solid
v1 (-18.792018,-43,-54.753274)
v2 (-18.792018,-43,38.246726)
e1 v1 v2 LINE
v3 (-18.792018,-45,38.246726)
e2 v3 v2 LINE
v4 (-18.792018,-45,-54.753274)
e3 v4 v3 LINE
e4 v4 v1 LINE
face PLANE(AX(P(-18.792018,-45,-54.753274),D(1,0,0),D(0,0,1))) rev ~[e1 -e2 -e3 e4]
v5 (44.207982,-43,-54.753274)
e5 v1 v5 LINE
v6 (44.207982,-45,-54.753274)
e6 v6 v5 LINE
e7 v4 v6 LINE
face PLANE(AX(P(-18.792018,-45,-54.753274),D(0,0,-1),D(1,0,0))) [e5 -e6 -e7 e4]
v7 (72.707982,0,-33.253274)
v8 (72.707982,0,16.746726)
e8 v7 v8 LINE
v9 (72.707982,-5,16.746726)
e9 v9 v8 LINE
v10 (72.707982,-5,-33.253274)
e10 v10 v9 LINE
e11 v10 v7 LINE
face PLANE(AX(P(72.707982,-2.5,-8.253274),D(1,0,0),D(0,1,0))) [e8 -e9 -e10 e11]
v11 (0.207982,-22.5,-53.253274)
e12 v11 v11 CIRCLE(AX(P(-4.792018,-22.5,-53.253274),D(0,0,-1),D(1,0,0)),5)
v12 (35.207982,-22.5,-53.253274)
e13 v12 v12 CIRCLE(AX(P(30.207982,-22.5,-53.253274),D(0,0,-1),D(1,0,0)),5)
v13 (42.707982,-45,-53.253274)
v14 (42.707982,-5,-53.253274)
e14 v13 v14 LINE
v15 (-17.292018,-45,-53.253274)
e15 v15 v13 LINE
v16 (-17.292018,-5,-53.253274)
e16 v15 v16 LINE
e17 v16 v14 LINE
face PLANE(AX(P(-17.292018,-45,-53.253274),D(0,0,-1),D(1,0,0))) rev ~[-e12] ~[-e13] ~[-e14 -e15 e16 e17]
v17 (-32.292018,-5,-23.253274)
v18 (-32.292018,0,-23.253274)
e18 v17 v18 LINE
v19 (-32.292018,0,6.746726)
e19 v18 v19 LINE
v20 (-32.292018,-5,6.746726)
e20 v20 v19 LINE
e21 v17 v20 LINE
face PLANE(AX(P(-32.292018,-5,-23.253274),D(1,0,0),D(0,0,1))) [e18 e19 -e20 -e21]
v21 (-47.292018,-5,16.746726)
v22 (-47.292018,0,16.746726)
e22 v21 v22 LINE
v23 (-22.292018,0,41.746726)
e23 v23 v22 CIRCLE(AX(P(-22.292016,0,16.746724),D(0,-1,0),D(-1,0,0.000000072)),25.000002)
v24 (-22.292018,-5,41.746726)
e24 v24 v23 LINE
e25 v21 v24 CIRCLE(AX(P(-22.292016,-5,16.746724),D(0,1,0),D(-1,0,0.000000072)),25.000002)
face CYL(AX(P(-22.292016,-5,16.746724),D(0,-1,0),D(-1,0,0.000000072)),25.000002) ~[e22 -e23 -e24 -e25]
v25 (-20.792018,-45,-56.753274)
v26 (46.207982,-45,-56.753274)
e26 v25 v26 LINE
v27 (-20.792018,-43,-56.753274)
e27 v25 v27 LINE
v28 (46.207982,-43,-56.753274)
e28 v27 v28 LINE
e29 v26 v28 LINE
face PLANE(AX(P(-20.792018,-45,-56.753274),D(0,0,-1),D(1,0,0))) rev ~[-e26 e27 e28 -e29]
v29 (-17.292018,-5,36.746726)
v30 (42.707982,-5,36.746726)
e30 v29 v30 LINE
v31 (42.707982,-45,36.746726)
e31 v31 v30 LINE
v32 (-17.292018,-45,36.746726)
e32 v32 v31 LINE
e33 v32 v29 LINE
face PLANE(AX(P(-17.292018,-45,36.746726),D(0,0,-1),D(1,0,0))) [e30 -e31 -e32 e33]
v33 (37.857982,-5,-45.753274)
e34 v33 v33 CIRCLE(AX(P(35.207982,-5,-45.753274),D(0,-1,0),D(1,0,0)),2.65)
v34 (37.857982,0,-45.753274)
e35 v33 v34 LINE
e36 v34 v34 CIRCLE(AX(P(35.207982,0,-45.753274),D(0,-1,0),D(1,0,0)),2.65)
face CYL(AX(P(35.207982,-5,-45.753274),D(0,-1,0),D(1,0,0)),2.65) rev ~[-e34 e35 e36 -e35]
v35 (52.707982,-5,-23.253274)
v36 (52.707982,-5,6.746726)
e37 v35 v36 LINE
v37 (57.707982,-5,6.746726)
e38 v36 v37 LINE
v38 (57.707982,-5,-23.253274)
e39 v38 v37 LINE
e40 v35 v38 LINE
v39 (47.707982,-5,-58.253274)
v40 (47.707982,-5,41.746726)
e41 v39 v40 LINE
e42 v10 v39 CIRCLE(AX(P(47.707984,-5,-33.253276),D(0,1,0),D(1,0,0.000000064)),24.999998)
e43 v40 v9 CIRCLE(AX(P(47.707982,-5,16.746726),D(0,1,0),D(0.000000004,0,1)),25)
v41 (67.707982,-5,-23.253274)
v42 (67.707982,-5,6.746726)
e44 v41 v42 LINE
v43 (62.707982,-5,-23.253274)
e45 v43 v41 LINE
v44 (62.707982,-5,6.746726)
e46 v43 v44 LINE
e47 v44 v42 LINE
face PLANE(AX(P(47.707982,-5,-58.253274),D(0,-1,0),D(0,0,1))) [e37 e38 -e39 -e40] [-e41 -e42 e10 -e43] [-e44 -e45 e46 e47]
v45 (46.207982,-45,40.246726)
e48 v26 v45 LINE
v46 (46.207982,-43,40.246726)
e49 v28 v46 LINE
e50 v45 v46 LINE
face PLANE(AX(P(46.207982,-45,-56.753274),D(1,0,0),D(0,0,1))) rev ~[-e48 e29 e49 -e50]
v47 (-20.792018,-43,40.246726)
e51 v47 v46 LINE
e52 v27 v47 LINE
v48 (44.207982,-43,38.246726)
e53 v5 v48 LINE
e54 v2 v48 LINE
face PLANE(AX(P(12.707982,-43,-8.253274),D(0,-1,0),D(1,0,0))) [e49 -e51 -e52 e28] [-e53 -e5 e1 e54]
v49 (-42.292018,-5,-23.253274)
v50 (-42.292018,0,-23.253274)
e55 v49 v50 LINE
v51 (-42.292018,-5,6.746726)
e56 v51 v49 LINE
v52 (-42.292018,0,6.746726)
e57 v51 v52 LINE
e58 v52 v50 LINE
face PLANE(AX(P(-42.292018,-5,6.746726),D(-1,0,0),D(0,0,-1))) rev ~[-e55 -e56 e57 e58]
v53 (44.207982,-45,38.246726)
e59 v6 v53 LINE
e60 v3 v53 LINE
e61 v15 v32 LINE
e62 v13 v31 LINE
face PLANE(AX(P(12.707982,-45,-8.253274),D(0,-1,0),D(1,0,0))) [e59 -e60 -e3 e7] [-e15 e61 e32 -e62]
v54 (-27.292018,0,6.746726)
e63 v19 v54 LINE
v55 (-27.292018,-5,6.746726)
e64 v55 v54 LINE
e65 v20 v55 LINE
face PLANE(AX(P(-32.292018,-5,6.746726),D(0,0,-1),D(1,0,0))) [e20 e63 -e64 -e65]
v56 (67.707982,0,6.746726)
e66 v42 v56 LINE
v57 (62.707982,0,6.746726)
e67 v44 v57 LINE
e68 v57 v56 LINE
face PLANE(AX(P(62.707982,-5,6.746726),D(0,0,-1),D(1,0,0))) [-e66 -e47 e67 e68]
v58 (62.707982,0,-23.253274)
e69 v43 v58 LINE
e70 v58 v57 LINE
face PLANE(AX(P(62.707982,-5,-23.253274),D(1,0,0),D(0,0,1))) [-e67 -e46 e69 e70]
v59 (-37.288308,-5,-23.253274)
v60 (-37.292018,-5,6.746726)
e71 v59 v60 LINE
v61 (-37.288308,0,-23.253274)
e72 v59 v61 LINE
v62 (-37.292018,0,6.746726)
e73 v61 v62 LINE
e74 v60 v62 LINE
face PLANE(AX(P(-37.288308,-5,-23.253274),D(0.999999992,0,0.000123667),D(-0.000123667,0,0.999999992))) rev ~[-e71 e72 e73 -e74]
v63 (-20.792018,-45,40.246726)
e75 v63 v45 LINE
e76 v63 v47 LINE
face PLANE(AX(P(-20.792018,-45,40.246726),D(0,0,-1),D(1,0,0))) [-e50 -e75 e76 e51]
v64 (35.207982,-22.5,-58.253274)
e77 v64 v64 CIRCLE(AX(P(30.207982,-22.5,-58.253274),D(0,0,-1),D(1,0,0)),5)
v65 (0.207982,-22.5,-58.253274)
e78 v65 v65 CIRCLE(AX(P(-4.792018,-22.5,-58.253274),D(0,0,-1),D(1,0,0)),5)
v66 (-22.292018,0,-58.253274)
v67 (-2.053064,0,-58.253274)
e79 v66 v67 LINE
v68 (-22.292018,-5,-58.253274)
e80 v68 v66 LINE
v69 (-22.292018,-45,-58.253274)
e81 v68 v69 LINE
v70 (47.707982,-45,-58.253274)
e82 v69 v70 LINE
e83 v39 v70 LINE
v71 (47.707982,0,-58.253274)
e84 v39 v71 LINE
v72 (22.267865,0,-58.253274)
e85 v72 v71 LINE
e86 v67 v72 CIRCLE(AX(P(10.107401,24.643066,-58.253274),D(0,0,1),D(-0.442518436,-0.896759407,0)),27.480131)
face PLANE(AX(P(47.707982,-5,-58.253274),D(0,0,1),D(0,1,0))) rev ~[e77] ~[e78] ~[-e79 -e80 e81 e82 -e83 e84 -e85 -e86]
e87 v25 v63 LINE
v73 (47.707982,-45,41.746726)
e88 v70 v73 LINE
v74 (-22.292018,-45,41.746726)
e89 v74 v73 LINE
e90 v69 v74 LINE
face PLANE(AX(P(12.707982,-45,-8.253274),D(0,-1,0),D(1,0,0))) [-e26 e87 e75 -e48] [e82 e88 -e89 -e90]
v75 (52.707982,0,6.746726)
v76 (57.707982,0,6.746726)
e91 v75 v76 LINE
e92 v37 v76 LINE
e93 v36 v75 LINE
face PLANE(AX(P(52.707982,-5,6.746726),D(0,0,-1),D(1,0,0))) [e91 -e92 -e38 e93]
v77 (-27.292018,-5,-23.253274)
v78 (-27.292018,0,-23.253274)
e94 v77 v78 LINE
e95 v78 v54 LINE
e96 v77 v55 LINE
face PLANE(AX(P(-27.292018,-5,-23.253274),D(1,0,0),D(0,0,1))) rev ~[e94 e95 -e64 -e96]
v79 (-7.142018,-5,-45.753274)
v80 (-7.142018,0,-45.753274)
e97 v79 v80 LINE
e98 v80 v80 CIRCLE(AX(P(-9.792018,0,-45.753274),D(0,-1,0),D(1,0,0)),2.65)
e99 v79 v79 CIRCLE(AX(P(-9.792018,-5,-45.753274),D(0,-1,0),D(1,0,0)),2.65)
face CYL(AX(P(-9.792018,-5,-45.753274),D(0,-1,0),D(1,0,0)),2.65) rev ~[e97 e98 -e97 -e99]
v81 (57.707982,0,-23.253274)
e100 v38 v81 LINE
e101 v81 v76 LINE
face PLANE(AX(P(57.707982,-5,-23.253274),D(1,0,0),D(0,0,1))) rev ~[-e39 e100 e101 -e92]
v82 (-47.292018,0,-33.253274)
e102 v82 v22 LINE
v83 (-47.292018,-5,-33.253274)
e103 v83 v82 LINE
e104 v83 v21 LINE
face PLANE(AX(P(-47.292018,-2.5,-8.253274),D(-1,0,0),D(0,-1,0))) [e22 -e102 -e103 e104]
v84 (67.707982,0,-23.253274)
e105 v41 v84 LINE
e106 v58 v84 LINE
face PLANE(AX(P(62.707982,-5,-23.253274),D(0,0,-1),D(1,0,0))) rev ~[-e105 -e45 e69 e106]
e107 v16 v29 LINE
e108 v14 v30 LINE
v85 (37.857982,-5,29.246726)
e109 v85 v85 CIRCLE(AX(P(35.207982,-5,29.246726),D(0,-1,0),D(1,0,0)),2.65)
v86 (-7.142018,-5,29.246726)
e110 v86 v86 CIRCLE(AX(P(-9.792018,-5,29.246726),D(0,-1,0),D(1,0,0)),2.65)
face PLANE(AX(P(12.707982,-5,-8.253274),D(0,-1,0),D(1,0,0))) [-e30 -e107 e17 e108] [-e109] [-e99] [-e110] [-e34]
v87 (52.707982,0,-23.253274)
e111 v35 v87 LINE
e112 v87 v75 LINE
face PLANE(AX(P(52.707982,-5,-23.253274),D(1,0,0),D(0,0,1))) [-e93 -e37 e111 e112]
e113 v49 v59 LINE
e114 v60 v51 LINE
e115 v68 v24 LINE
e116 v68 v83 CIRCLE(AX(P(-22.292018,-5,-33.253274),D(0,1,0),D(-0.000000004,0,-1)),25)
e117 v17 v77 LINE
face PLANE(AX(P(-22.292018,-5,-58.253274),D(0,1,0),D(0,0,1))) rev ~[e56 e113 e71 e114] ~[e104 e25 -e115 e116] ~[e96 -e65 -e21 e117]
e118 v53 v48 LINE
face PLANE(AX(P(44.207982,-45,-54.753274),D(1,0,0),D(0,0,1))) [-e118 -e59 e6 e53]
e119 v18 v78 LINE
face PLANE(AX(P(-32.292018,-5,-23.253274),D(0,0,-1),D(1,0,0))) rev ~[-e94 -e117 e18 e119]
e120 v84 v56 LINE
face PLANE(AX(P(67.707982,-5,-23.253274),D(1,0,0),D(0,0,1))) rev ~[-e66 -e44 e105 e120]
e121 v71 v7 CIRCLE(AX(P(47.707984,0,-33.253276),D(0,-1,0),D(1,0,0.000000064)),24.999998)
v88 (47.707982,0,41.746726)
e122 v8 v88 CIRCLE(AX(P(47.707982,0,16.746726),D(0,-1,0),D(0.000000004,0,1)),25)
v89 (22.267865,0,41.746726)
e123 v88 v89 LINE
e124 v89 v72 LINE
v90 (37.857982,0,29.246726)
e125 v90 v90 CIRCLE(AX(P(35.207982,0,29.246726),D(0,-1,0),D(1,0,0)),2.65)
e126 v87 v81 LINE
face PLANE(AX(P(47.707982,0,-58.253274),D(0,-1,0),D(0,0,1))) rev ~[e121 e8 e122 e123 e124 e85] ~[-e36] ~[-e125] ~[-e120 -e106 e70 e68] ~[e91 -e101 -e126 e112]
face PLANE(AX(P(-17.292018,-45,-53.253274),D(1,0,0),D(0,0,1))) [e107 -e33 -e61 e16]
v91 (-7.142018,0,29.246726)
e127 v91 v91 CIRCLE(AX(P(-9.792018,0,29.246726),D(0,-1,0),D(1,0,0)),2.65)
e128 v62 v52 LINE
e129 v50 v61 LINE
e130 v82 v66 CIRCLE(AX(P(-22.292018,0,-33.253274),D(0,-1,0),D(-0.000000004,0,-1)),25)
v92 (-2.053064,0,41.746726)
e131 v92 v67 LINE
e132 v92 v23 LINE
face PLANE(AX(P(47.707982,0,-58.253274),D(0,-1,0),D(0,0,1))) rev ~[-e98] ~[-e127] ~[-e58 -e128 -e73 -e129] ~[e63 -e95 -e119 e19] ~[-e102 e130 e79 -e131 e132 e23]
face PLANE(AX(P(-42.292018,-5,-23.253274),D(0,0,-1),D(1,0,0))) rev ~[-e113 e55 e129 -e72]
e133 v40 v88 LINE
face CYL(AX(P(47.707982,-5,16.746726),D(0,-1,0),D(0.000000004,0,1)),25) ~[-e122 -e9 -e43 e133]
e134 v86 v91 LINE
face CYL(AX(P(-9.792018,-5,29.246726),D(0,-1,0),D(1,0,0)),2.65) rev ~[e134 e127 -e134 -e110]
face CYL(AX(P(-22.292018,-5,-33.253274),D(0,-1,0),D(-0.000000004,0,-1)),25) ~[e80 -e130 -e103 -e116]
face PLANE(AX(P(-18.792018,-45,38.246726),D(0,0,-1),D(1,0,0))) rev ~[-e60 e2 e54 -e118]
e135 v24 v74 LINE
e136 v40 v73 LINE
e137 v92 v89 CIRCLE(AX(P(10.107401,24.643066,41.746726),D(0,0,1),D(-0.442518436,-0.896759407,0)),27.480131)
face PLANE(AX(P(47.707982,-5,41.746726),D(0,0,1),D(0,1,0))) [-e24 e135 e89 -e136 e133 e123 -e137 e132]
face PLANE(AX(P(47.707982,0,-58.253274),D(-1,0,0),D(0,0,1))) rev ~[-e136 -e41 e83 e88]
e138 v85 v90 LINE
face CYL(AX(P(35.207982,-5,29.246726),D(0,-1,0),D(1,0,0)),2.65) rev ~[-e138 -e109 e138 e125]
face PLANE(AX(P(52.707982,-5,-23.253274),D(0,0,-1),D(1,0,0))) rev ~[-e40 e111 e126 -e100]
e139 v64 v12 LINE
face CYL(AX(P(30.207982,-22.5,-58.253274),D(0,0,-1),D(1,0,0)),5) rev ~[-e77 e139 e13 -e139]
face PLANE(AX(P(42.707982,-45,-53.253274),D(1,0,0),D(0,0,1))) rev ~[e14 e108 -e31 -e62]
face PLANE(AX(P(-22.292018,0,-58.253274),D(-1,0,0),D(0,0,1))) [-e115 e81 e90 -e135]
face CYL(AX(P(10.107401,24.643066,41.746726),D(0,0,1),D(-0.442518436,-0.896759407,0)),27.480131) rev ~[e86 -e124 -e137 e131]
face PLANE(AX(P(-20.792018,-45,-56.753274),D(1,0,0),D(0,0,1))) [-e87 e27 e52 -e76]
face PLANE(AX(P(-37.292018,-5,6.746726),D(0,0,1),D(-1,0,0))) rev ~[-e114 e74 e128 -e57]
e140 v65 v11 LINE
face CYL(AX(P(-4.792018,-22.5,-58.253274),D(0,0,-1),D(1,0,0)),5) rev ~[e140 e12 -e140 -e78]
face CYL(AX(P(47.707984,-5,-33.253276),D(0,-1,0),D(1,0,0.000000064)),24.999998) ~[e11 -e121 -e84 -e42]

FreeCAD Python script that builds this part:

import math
import FreeCAD as App
import Part
import Sketcher
Q = App.Units.Quantity

doc = App.newDocument("Part")
params = doc.addObject("Spreadsheet::Sheet", "Params")
for row, (alias, value) in enumerate([
    ("sketch1_width", "70 mm"),
    ("sketch1_height", "100 mm"),
    ("pad1_length", "45 mm"),
    ("sketch2_width", "60 mm"),
    ("sketch2_height", "90 mm"),
    ("pocket1_length", "40 mm"),
    ("sketch3_diameter", "5.3 mm"),
    ("pocket2_length", "5 mm"),
    ("sketch4_diameter", "5.3 mm"),
    ("pocket3_length", "25 mm"),
    ("sketch5_diameter", "5.3 mm"),
    ("pocket4_length", "25 mm"),
    ("sketch6_diameter", "5.3 mm"),
    ("pocket5_length", "25 mm"),
    ("sketch7_width", "5 mm"),
    ("sketch7_height", "100 mm"),
    ("pad2_length", "25 mm"),
    ("sketch8_width", "5 mm"),
    ("sketch8_height", "100 mm"),
    ("pad3_length", "25 mm"),
    ("sketch9_radius", "25.000002 mm"),
    ("pocket6_length", "25 mm"),
    ("sketch10_radius", "25 mm"),
    ("pocket7_length", "25 mm"),
    ("sketch11_radius", "25 mm"),
    ("pocket8_length", "25 mm"),
    ("sketch12_width", "67 mm"),
    ("sketch12_width2", "63 mm"),
    ("sketch12_height", "97 mm"),
    ("sketch12_height2", "93 mm"),
    ("pocket9_length", "2 mm"),
    ("sketch13_width", "5 mm"),
    ("sketch13_height", "30 mm"),
    ("pocket10_length", "25 mm"),
    ("sketch14_width", "5 mm"),
    ("sketch14_height", "30 mm"),
    ("pocket11_length", "25 mm"),
    ("sketch15_diameter", "10 mm"),
    ("pocket12_length", "25 mm"),
    ("pocket13_length", "100 mm"),
], start=1):
    params.set(f"A{row}", alias)
    params.set(f"B{row}", "=" + value)
    params.setAlias(f"B{row}", alias)

body = doc.addObject("PartDesign::Body", "Body")

# Sketch on XZ plane
sketch1 = body.newObject("Sketcher::SketchObject", "Sketch")
sketch1.AttachmentSupport = (doc.getObject("XZ_Plane"), [""])
sketch1.MapMode = "FlatFace"
sketch1.addGeometry([
    Part.LineSegment(App.Vector(-22, 42, 0), App.Vector(-22, -58, 0)),
    Part.LineSegment(App.Vector(-22, -58, 0), App.Vector(48, -58, 0)),
    Part.LineSegment(App.Vector(48, -58, 0), App.Vector(48, 42, 0)),
    Part.LineSegment(App.Vector(48, 42, 0), App.Vector(-22, 42, 0)),
], False)
sketch1.addConstraint([
    Sketcher.Constraint("Coincident", 0, 2, 1, 1),
    Sketcher.Constraint("Coincident", 1, 2, 2, 1),
    Sketcher.Constraint("Coincident", 2, 2, 3, 1),
    Sketcher.Constraint("Coincident", 3, 2, 0, 1),
    Sketcher.Constraint("Vertical", 0),
    Sketcher.Constraint("Horizontal", 1),
    Sketcher.Constraint("Vertical", 2),
    Sketcher.Constraint("Horizontal", 3),
    Sketcher.Constraint("DistanceX", 1, 1, 1, 2, Q("70 mm")),
    Sketcher.Constraint("DistanceY", 0, 2, 0, 1, Q("100 mm")),
    Sketcher.Constraint("DistanceX", 0, 2, -1, 1, Q("22.292018 mm")),
    Sketcher.Constraint("DistanceY", 0, 2, -1, 1, Q("58.253274 mm")),
])
sketch1.setExpression("Constraints[8]", "Params.sketch1_width")
sketch1.setExpression("Constraints[9]", "Params.sketch1_height")
pad1 = body.newObject("PartDesign::Pad", "Pad")
pad1.Profile = sketch1
pad1.setExpression("Length", "Params.pad1_length")

# Sketch on XZ plane
sketch2 = body.newObject("Sketcher::SketchObject", "Sketch001")
sketch2.AttachmentSupport = (doc.getObject("XZ_Plane"), [""])
sketch2.MapMode = "FlatFace"
sketch2.AttachmentOffset = App.Placement(App.Vector(0, 0, 45), App.Rotation())
sketch2.addGeometry([
    Part.LineSegment(App.Vector(-17, 37, 0), App.Vector(-17, -53, 0)),
    Part.LineSegment(App.Vector(-17, -53, 0), App.Vector(43, -53, 0)),
    Part.LineSegment(App.Vector(43, -53, 0), App.Vector(43, 37, 0)),
    Part.LineSegment(App.Vector(43, 37, 0), App.Vector(-17, 37, 0)),
], False)
sketch2.addConstraint([
    Sketcher.Constraint("Coincident", 0, 2, 1, 1),
    Sketcher.Constraint("Coincident", 1, 2, 2, 1),
    Sketcher.Constraint("Coincident", 2, 2, 3, 1),
    Sketcher.Constraint("Coincident", 3, 2, 0, 1),
    Sketcher.Constraint("Vertical", 0),
    Sketcher.Constraint("Horizontal", 1),
    Sketcher.Constraint("Vertical", 2),
    Sketcher.Constraint("Horizontal", 3),
    Sketcher.Constraint("DistanceX", 1, 1, 1, 2, Q("60 mm")),
    Sketcher.Constraint("DistanceY", 0, 2, 0, 1, Q("90 mm")),
    Sketcher.Constraint("DistanceX", 0, 2, -1, 1, Q("17.292018 mm")),
    Sketcher.Constraint("DistanceY", 0, 2, -1, 1, Q("53.253274 mm")),
])
sketch2.setExpression("Constraints[8]", "Params.sketch2_width")
sketch2.setExpression("Constraints[9]", "Params.sketch2_height")
pocket1 = body.newObject("PartDesign::Pocket", "Pocket")
pocket1.Profile = sketch2
pocket1.setExpression("Length", "Params.pocket1_length")

# Sketch on XZ plane
sketch3 = body.newObject("Sketcher::SketchObject", "Sketch002")
sketch3.AttachmentSupport = (doc.getObject("XZ_Plane"), [""])
sketch3.MapMode = "FlatFace"
sketch3.AttachmentOffset = App.Placement(App.Vector(0, 0, 5), App.Rotation())
sketch3.addGeometry(Part.Circle(App.Vector(-9.8, 29.2, 0), App.Vector(0, 0, 1), 2.6), False)
sketch3.addConstraint([
    Sketcher.Constraint("Diameter", 0, Q("5.3 mm")),
    Sketcher.Constraint("DistanceX", 0, 3, -1, 1, Q("9.792018 mm")),
    Sketcher.Constraint("DistanceY", -1, 1, 0, 3, Q("29.246726 mm")),
])
sketch3.setExpression("Constraints[0]", "Params.sketch3_diameter")
pocket2 = body.newObject("PartDesign::Pocket", "Pocket001")
pocket2.Profile = sketch3
pocket2.setExpression("Length", "Params.pocket2_length")

# Sketch on XZ plane
sketch4 = body.newObject("Sketcher::SketchObject", "Sketch003")
sketch4.AttachmentSupport = (doc.getObject("XZ_Plane"), [""])
sketch4.MapMode = "FlatFace"
sketch4.AttachmentOffset = App.Placement(App.Vector(0, 0, 5), App.Rotation())
sketch4.addGeometry(Part.Circle(App.Vector(35.2, 29.2, 0), App.Vector(0, 0, 1), 2.6), False)
sketch4.addConstraint([
    Sketcher.Constraint("Diameter", 0, Q("5.3 mm")),
    Sketcher.Constraint("DistanceX", -1, 1, 0, 3, Q("35.207982 mm")),
    Sketcher.Constraint("DistanceY", -1, 1, 0, 3, Q("29.246726 mm")),
])
sketch4.setExpression("Constraints[0]", "Params.sketch4_diameter")
pocket3 = body.newObject("PartDesign::Pocket", "Pocket002")
pocket3.Profile = sketch4
pocket3.setExpression("Length", "Params.pocket3_length")

# Sketch on XZ plane
sketch5 = body.newObject("Sketcher::SketchObject", "Sketch004")
sketch5.AttachmentSupport = (doc.getObject("XZ_Plane"), [""])
sketch5.MapMode = "FlatFace"
sketch5.AttachmentOffset = App.Placement(App.Vector(0, 0, 5), App.Rotation())
sketch5.addGeometry(Part.Circle(App.Vector(35.2, -45.8, 0), App.Vector(0, 0, 1), 2.6), False)
sketch5.addConstraint([
    Sketcher.Constraint("Diameter", 0, Q("5.3 mm")),
    Sketcher.Constraint("DistanceX", -1, 1, 0, 3, Q("35.207982 mm")),
    Sketcher.Constraint("DistanceY", 0, 3, -1, 1, Q("45.753274 mm")),
])
sketch5.setExpression("Constraints[0]", "Params.sketch5_diameter")
pocket4 = body.newObject("PartDesign::Pocket", "Pocket003")
pocket4.Profile = sketch5
pocket4.setExpression("Length", "Params.pocket4_length")

# Sketch on XZ plane
sketch6 = body.newObject("Sketcher::SketchObject", "Sketch005")
sketch6.AttachmentSupport = (doc.getObject("XZ_Plane"), [""])
sketch6.MapMode = "FlatFace"
sketch6.AttachmentOffset = App.Placement(App.Vector(0, 0, 5), App.Rotation())
sketch6.addGeometry(Part.Circle(App.Vector(-9.8, -45.8, 0), App.Vector(0, 0, 1), 2.6), False)
sketch6.addConstraint([
    Sketcher.Constraint("Diameter", 0, Q("5.3 mm")),
    Sketcher.Constraint("DistanceX", 0, 3, -1, 1, Q("9.792018 mm")),
    Sketcher.Constraint("DistanceY", 0, 3, -1, 1, Q("45.753274 mm")),
])
sketch6.setExpression("Constraints[0]", "Params.sketch6_diameter")
pocket5 = body.newObject("PartDesign::Pocket", "Pocket004")
pocket5.Profile = sketch6
pocket5.setExpression("Length", "Params.pocket5_length")

# Sketch on YZ plane
sketch7 = body.newObject("Sketcher::SketchObject", "Sketch006")
sketch7.AttachmentSupport = (doc.getObject("YZ_Plane"), [""])
sketch7.MapMode = "FlatFace"
sketch7.AttachmentOffset = App.Placement(App.Vector(0, 0, -22.292018), App.Rotation())
sketch7.addGeometry([
    Part.LineSegment(App.Vector(0, 42, 0), App.Vector(0, -58, 0)),
    Part.LineSegment(App.Vector(0, -58, 0), App.Vector(-5, -58, 0)),
    Part.LineSegment(App.Vector(-5, -58, 0), App.Vector(-5, 42, 0)),
    Part.LineSegment(App.Vector(-5, 42, 0), App.Vector(0, 42, 0)),
], False)
sketch7.addConstraint([
    Sketcher.Constraint("Coincident", 0, 2, 1, 1),
    Sketcher.Constraint("Coincident", 1, 2, 2, 1),
    Sketcher.Constraint("Coincident", 2, 2, 3, 1),
    Sketcher.Constraint("Coincident", 3, 2, 0, 1),
    Sketcher.Constraint("Vertical", 0),
    Sketcher.Constraint("Horizontal", 1),
    Sketcher.Constraint("Vertical", 2),
    Sketcher.Constraint("Horizontal", 3),
    Sketcher.Constraint("PointOnObject", 0, 2, -2),
    Sketcher.Constraint("DistanceX", 1, 2, 1, 1, Q("5 mm")),
    Sketcher.Constraint("DistanceY", 0, 2, 0, 1, Q("100 mm")),
    Sketcher.Constraint("DistanceY", 0, 2, -1, 1, Q("58.253274 mm")),
])
sketch7.setExpression("Constraints[9]", "Params.sketch7_width")
sketch7.setExpression("Constraints[10]", "Params.sketch7_height")
pad2 = body.newObject("PartDesign::Pad", "Pad001")
pad2.Profile = sketch7
pad2.setExpression("Length", "Params.pad2_length")
pad2.Reversed = True

# Sketch on YZ plane
sketch8 = body.newObject("Sketcher::SketchObject", "Sketch007")
sketch8.AttachmentSupport = (doc.getObject("YZ_Plane"), [""])
sketch8.MapMode = "FlatFace"
sketch8.AttachmentOffset = App.Placement(App.Vector(0, 0, 47.707982), App.Rotation())
sketch8.addGeometry([
    Part.LineSegment(App.Vector(-5, 42, 0), App.Vector(-5, -58, 0)),
    Part.LineSegment(App.Vector(-5, -58, 0), App.Vector(0, -58, 0)),
    Part.LineSegment(App.Vector(0, -58, 0), App.Vector(0, 42, 0)),
    Part.LineSegment(App.Vector(0, 42, 0), App.Vector(-5, 42, 0)),
], False)
sketch8.addConstraint([
    Sketcher.Constraint("Coincident", 0, 2, 1, 1),
    Sketcher.Constraint("Coincident", 1, 2, 2, 1),
    Sketcher.Constraint("Coincident", 2, 2, 3, 1),
    Sketcher.Constraint("Coincident", 3, 2, 0, 1),
    Sketcher.Constraint("Vertical", 0),
    Sketcher.Constraint("Horizontal", 1),
    Sketcher.Constraint("Vertical", 2),
    Sketcher.Constraint("Horizontal", 3),
    Sketcher.Constraint("PointOnObject", 1, 2, -2),
    Sketcher.Constraint("DistanceX", 1, 1, 1, 2, Q("5 mm")),
    Sketcher.Constraint("DistanceY", 0, 2, 0, 1, Q("100 mm")),
    Sketcher.Constraint("DistanceY", 0, 2, -1, 1, Q("58.253274 mm")),
])
sketch8.setExpression("Constraints[9]", "Params.sketch8_width")
sketch8.setExpression("Constraints[10]", "Params.sketch8_height")
pad3 = body.newObject("PartDesign::Pad", "Pad002")
pad3.Profile = sketch8
pad3.setExpression("Length", "Params.pad3_length")

# Sketch on XZ plane
sketch9 = body.newObject("Sketcher::SketchObject", "Sketch008")
sketch9.AttachmentSupport = (doc.getObject("XZ_Plane"), [""])
sketch9.MapMode = "FlatFace"
sketch9.AttachmentOffset = App.Placement(App.Vector(0, 0, 5), App.Rotation())
sketch9.addGeometry([
    Part.ArcOfCircle(Part.Circle(App.Vector(-22, 17, 0), App.Vector(0, 0, 1), 25), math.radians(90), math.radians(180)),
    Part.LineSegment(App.Vector(-22, 42, 0), App.Vector(-47, 42, 0)),
    Part.LineSegment(App.Vector(-47, 42, 0), App.Vector(-47, 17, 0)),
], False)
sketch9.addConstraint([
    Sketcher.Constraint("Tangent", 0, 1, 1, 1),
    Sketcher.Constraint("Coincident", 1, 2, 2, 1),
    Sketcher.Constraint("Tangent", 2, 2, 0, 2),
    Sketcher.Constraint("Horizontal", 1),
    Sketcher.Constraint("Vertical", 2),
    Sketcher.Constraint("Radius", 0, Q("25.000002 mm")),
    Sketcher.Constraint("DistanceX", 0, 3, -1, 1, Q("22.292016 mm")),
    Sketcher.Constraint("DistanceY", -1, 1, 0, 3, Q("16.746724 mm")),
])
sketch9.setExpression("Constraints[5]", "Params.sketch9_radius")
pocket6 = body.newObject("PartDesign::Pocket", "Pocket005")
pocket6.Profile = sketch9
pocket6.setExpression("Length", "Params.pocket6_length")

# Sketch on XZ plane
sketch10 = body.newObject("Sketcher::SketchObject", "Sketch009")
sketch10.AttachmentSupport = (doc.getObject("XZ_Plane"), [""])
sketch10.MapMode = "FlatFace"
sketch10.AttachmentOffset = App.Placement(App.Vector(0, 0, 5), App.Rotation())
sketch10.addGeometry([
    Part.LineSegment(App.Vector(-47, -58, 0), App.Vector(-22, -58, 0)),
    Part.ArcOfCircle(Part.Circle(App.Vector(-22, -33, 0), App.Vector(0, 0, 1), 25), math.radians(-180), math.radians(-90)),
    Part.LineSegment(App.Vector(-47, -33, 0), App.Vector(-47, -58, 0)),
], False)
sketch10.addConstraint([
    Sketcher.Constraint("Tangent", 0, 2, 1, 2),
    Sketcher.Constraint("Tangent", 1, 1, 2, 1),
    Sketcher.Constraint("Coincident", 2, 2, 0, 1),
    Sketcher.Constraint("Horizontal", 0),
    Sketcher.Constraint("Vertical", 2),
    Sketcher.Constraint("Radius", 1, Q("25 mm")),
    Sketcher.Constraint("DistanceX", 1, 3, -1, 1, Q("22.292018 mm")),
    Sketcher.Constraint("DistanceY", 1, 3, -1, 1, Q("33.253274 mm")),
])
sketch10.setExpression("Constraints[5]", "Params.sketch10_radius")
pocket7 = body.newObject("PartDesign::Pocket", "Pocket006")
pocket7.Profile = sketch10
pocket7.setExpression("Length", "Params.pocket7_length")

# Sketch on XZ plane
sketch11 = body.newObject("Sketcher::SketchObject", "Sketch010")
sketch11.AttachmentSupport = (doc.getObject("XZ_Plane"), [""])
sketch11.MapMode = "FlatFace"
sketch11.AttachmentOffset = App.Placement(App.Vector(0, 0, 5), App.Rotation())
sketch11.addGeometry([
    Part.LineSegment(App.Vector(73, 42, 0), App.Vector(48, 42, 0)),  # 0
    Part.ArcOfCircle(Part.Circle(App.Vector(48, 17, 0), App.Vector(0, 0, 1), 25), math.radians(0), math.radians(90)),  # 1
    Part.LineSegment(App.Vector(73, 17, 0), App.Vector(73, 42, 0)),  # 2
    Part.ArcOfCircle(Part.Circle(App.Vector(48, -33, 0), App.Vector(0, 0, 1), 25), math.radians(-90), math.radians(0)),  # 3
    Part.LineSegment(App.Vector(48, -58, 0), App.Vector(73, -58, 0)),  # 4
    Part.LineSegment(App.Vector(73, -58, 0), App.Vector(73, -33, 0)),  # 5
], False)
sketch11.addConstraint([
    Sketcher.Constraint("Tangent", 0, 2, 1, 2),
    Sketcher.Constraint("Tangent", 1, 1, 2, 1),
    Sketcher.Constraint("Coincident", 2, 2, 0, 1),
    Sketcher.Constraint("Tangent", 3, 1, 4, 1),
    Sketcher.Constraint("Coincident", 4, 2, 5, 1),
    Sketcher.Constraint("Tangent", 5, 2, 3, 2),
    Sketcher.Constraint("Horizontal", 0),
    Sketcher.Constraint("Vertical", 2),
    Sketcher.Constraint("Horizontal", 4),
    Sketcher.Constraint("Vertical", 5),
    Sketcher.Constraint("Equal", 1, 3),
    Sketcher.Constraint("Vertical", 1, 3, 3, 3),
    Sketcher.Constraint("Radius", 1, Q("25 mm")),
    Sketcher.Constraint("DistanceY", 3, 3, 1, 3, Q("50.000002 mm")),
    Sketcher.Constraint("DistanceX", -1, 1, 1, 3, Q("47.707982 mm")),
    Sketcher.Constraint("DistanceY", -1, 1, 1, 3, Q("16.746726 mm")),
])
sketch11.setExpression("Constraints[12]", "Params.sketch11_radius")
pocket8 = body.newObject("PartDesign::Pocket", "Pocket007")
pocket8.Profile = sketch11
pocket8.setExpression("Length", "Params.pocket8_length")

# Sketch on XZ plane
sketch12 = body.newObject("Sketcher::SketchObject", "Sketch011")
sketch12.AttachmentSupport = (doc.getObject("XZ_Plane"), [""])
sketch12.MapMode = "FlatFace"
sketch12.AttachmentOffset = App.Placement(App.Vector(0, 0, 45), App.Rotation())
sketch12.addGeometry([
    Part.LineSegment(App.Vector(-21, 40, 0), App.Vector(-21, -57, 0)),  # 0
    Part.LineSegment(App.Vector(-21, -57, 0), App.Vector(46, -57, 0)),  # 1
    Part.LineSegment(App.Vector(46, -57, 0), App.Vector(46, 40, 0)),  # 2
    Part.LineSegment(App.Vector(46, 40, 0), App.Vector(-21, 40, 0)),  # 3
    Part.LineSegment(App.Vector(44, -55, 0), App.Vector(-19, -55, 0)),  # 4
    Part.LineSegment(App.Vector(-19, -55, 0), App.Vector(-19, 38, 0)),  # 5
    Part.LineSegment(App.Vector(-19, 38, 0), App.Vector(44, 38, 0)),  # 6
    Part.LineSegment(App.Vector(44, 38, 0), App.Vector(44, -55, 0)),  # 7
], False)
sketch12.addConstraint([
    Sketcher.Constraint("Coincident", 0, 2, 1, 1),
    Sketcher.Constraint("Coincident", 1, 2, 2, 1),
    Sketcher.Constraint("Coincident", 2, 2, 3, 1),
    Sketcher.Constraint("Coincident", 3, 2, 0, 1),
    Sketcher.Constraint("Coincident", 4, 2, 5, 1),
    Sketcher.Constraint("Coincident", 5, 2, 6, 1),
    Sketcher.Constraint("Coincident", 6, 2, 7, 1),
    Sketcher.Constraint("Coincident", 7, 2, 4, 1),
    Sketcher.Constraint("Vertical", 0),
    Sketcher.Constraint("Horizontal", 1),
    Sketcher.Constraint("Vertical", 2),
    Sketcher.Constraint("Horizontal", 3),
    Sketcher.Constraint("Horizontal", 4),
    Sketcher.Constraint("Vertical", 5),
    Sketcher.Constraint("Horizontal", 6),
    Sketcher.Constraint("Vertical", 7),
    Sketcher.Constraint("DistanceX", 1, 1, 1, 2, Q("67 mm")),
    Sketcher.Constraint("DistanceX", 4, 2, 4, 1, Q("63 mm")),
    Sketcher.Constraint("DistanceY", 0, 2, 0, 1, Q("97 mm")),
    Sketcher.Constraint("DistanceY", 5, 1, 5, 2, Q("93 mm")),
    Sketcher.Constraint("DistanceX", 0, 2, 4, 2, Q("2 mm")),
    Sketcher.Constraint("DistanceY", 0, 2, 4, 2, Q("2 mm")),
    Sketcher.Constraint("DistanceX", 0, 2, -1, 1, Q("20.792018 mm")),
    Sketcher.Constraint("DistanceY", 0, 2, -1, 1, Q("56.753274 mm")),
])
sketch12.setExpression("Constraints[16]", "Params.sketch12_width")
sketch12.setExpression("Constraints[17]", "Params.sketch12_width2")
sketch12.setExpression("Constraints[18]", "Params.sketch12_height")
sketch12.setExpression("Constraints[19]", "Params.sketch12_height2")
pocket9 = body.newObject("PartDesign::Pocket", "Pocket008")
pocket9.Profile = sketch12
pocket9.setExpression("Length", "Params.pocket9_length")

# Sketch on XZ plane
sketch13 = body.newObject("Sketcher::SketchObject", "Sketch012")
sketch13.AttachmentSupport = (doc.getObject("XZ_Plane"), [""])
sketch13.MapMode = "FlatFace"
sketch13.AttachmentOffset = App.Placement(App.Vector(0, 0, 5), App.Rotation())
sketch13.addGeometry([
    Part.LineSegment(App.Vector(-37, 7, 0), App.Vector(-42, 7, 0)),  # 0
    Part.LineSegment(App.Vector(-42, 7, 0), App.Vector(-42, -23, 0)),  # 1
    Part.LineSegment(App.Vector(-42, -23, 0), App.Vector(-37, -23, 0)),  # 2
    Part.LineSegment(App.Vector(-37, -23, 0), App.Vector(-37, 7, 0)),  # 3
    Part.LineSegment(App.Vector(-32, 7, 0), App.Vector(-32, -23, 0)),  # 4
    Part.LineSegment(App.Vector(-32, -23, 0), App.Vector(-27, -23, 0)),  # 5
    Part.LineSegment(App.Vector(-27, -23, 0), App.Vector(-27, 7, 0)),  # 6
    Part.LineSegment(App.Vector(-27, 7, 0), App.Vector(-32, 7, 0)),  # 7
], False)
sketch13.addConstraint([
    Sketcher.Constraint("Coincident", 0, 2, 1, 1),
    Sketcher.Constraint("Coincident", 1, 2, 2, 1),
    Sketcher.Constraint("Coincident", 2, 2, 3, 1),
    Sketcher.Constraint("Coincident", 3, 2, 0, 1),
    Sketcher.Constraint("Coincident", 4, 2, 5, 1),
    Sketcher.Constraint("Coincident", 5, 2, 6, 1),
    Sketcher.Constraint("Coincident", 6, 2, 7, 1),
    Sketcher.Constraint("Coincident", 7, 2, 4, 1),
    Sketcher.Constraint("Horizontal", 0),
    Sketcher.Constraint("Vertical", 1),
    Sketcher.Constraint("Horizontal", 2),
    Sketcher.Constraint("Vertical", 4),
    Sketcher.Constraint("Horizontal", 5),
    Sketcher.Constraint("Vertical", 6),
    Sketcher.Constraint("Horizontal", 7),
    Sketcher.Constraint("Horizontal", 2, 2, 4, 2),
    Sketcher.Constraint("Horizontal", 3, 2, 6, 2),
    Sketcher.Constraint("Equal", 0, 5),
    Sketcher.Constraint("DistanceX", 0, 2, 0, 1, Q("5 mm")),
    Sketcher.Constraint("DistanceY", 1, 2, 1, 1, Q("30 mm")),
    Sketcher.Constraint("DistanceX", 1, 2, 4, 2, Q("10 mm")),
    Sketcher.Constraint("DistanceX", 2, 1, 2, 2, Q("5.00371 mm")),
    Sketcher.Constraint("DistanceX", 0, 2, -1, 1, Q("42.292018 mm")),
    Sketcher.Constraint("DistanceY", -1, 1, 0, 2, Q("6.746726 mm")),
])
sketch13.setExpression("Constraints[18]", "Params.sketch13_width")
sketch13.setExpression("Constraints[19]", "Params.sketch13_height")
pocket10 = body.newObject("PartDesign::Pocket", "Pocket009")
pocket10.Profile = sketch13
pocket10.setExpression("Length", "Params.pocket10_length")

# Sketch on XZ plane
sketch14 = body.newObject("Sketcher::SketchObject", "Sketch013")
sketch14.AttachmentSupport = (doc.getObject("XZ_Plane"), [""])
sketch14.MapMode = "FlatFace"
sketch14.AttachmentOffset = App.Placement(App.Vector(0, 0, 5), App.Rotation())
sketch14.addGeometry([
    Part.LineSegment(App.Vector(53, 7, 0), App.Vector(53, -23, 0)),  # 0
    Part.LineSegment(App.Vector(53, -23, 0), App.Vector(58, -23, 0)),  # 1
    Part.LineSegment(App.Vector(58, -23, 0), App.Vector(58, 7, 0)),  # 2
    Part.LineSegment(App.Vector(58, 7, 0), App.Vector(53, 7, 0)),  # 3
    Part.LineSegment(App.Vector(63, 7, 0), App.Vector(63, -23, 0)),  # 4
    Part.LineSegment(App.Vector(63, -23, 0), App.Vector(68, -23, 0)),  # 5
    Part.LineSegment(App.Vector(68, -23, 0), App.Vector(68, 7, 0)),  # 6
    Part.LineSegment(App.Vector(68, 7, 0), App.Vector(63, 7, 0)),  # 7
], False)
sketch14.addConstraint([
    Sketcher.Constraint("Coincident", 0, 2, 1, 1),
    Sketcher.Constraint("Coincident", 1, 2, 2, 1),
    Sketcher.Constraint("Coincident", 2, 2, 3, 1),
    Sketcher.Constraint("Coincident", 3, 2, 0, 1),
    Sketcher.Constraint("Coincident", 4, 2, 5, 1),
    Sketcher.Constraint("Coincident", 5, 2, 6, 1),
    Sketcher.Constraint("Coincident", 6, 2, 7, 1),
    Sketcher.Constraint("Coincident", 7, 2, 4, 1),
    Sketcher.Constraint("Vertical", 0),
    Sketcher.Constraint("Horizontal", 1),
    Sketcher.Constraint("Vertical", 2),
    Sketcher.Constraint("Horizontal", 3),
    Sketcher.Constraint("Vertical", 4),
    Sketcher.Constraint("Horizontal", 5),
    Sketcher.Constraint("Vertical", 6),
    Sketcher.Constraint("Horizontal", 7),
    Sketcher.Constraint("Horizontal", 1, 2, 4, 2),
    Sketcher.Constraint("Horizontal", 3, 2, 6, 2),
    Sketcher.Constraint("Equal", 3, 5),
    Sketcher.Constraint("DistanceX", 1, 1, 1, 2, Q("5 mm")),
    Sketcher.Constraint("DistanceY", 0, 2, 0, 1, Q("30 mm")),
    Sketcher.Constraint("DistanceX", 1, 2, 4, 2, Q("5 mm")),
    Sketcher.Constraint("DistanceX", -1, 1, 5, 2, Q("67.707982 mm")),
    Sketcher.Constraint("DistanceY", 0, 2, -1, 1, Q("23.253274 mm")),
])
sketch14.setExpression("Constraints[19]", "Params.sketch14_width")
sketch14.setExpression("Constraints[20]", "Params.sketch14_height")
pocket11 = body.newObject("PartDesign::Pocket", "Pocket010")
pocket11.Profile = sketch14
pocket11.setExpression("Length", "Params.pocket11_length")

# Sketch on XY plane
sketch15 = body.newObject("Sketcher::SketchObject", "Sketch014")
sketch15.AttachmentSupport = (doc.getObject("XY_Plane"), [""])
sketch15.MapMode = "FlatFace"
sketch15.AttachmentOffset = App.Placement(App.Vector(0, 0, -58.253274), App.Rotation())
sketch15.addGeometry([
    Part.Circle(App.Vector(30, -22, 0), App.Vector(0, 0, 1), 5),
    Part.Circle(App.Vector(-5, -22, 0), App.Vector(0, 0, 1), 5),
], False)
sketch15.addConstraint([
    Sketcher.Constraint("Equal", 0, 1),
    Sketcher.Constraint("Horizontal", 0, 3, 1, 3),
    Sketcher.Constraint("Diameter", 0, Q("10 mm")),
    Sketcher.Constraint("DistanceX", 1, 3, 0, 3, Q("35 mm")),
    Sketcher.Constraint("DistanceY", 0, 3, -1, 1, Q("22.5 mm")),
    Sketcher.Constraint("DistanceX", -1, 1, 0, 3, Q("30.207982 mm")),
])
sketch15.setExpression("Constraints[2]", "Params.sketch15_diameter")
pocket12 = body.newObject("PartDesign::Pocket", "Pocket011")
pocket12.Profile = sketch15
pocket12.setExpression("Length", "Params.pocket12_length")
pocket12.Reversed = True

# Sketch on XY plane
sketch16 = body.newObject("Sketcher::SketchObject", "Sketch015")
sketch16.AttachmentSupport = (doc.getObject("XY_Plane"), [""])
sketch16.MapMode = "FlatFace"
sketch16.AttachmentOffset = App.Placement(App.Vector(0, 0, 41.746726), App.Rotation())
sketch16.addGeometry([
    Part.LineSegment(App.Vector(22, 0, 0), App.Vector(-2, 0, 0)),
    Part.ArcOfCircle(Part.Circle(App.Vector(10, 25, 0), App.Vector(0, 0, 1), 27), math.radians(-116), math.radians(-64)),
], False)
sketch16.addConstraint([
    Sketcher.Constraint("Coincident", 0, 1, 1, 2),
    Sketcher.Constraint("Coincident", 1, 1, 0, 2),
    Sketcher.Constraint("Horizontal", 0),
    Sketcher.Constraint("PointOnObject", 0, 1, -1),
    Sketcher.Constraint("Radius", 1, Q("27.480131 mm")),
    Sketcher.Constraint("DistanceX", 0, 2, 0, 1, Q("24.320929 mm")),
    Sketcher.Constraint("DistanceX", -1, 1, 1, 3, Q("10.107401 mm")),
])
pocket13 = body.newObject("PartDesign::Pocket", "Pocket012")
pocket13.Profile = sketch16
pocket13.setExpression("Length", "Params.pocket13_length")

doc.recompute()
